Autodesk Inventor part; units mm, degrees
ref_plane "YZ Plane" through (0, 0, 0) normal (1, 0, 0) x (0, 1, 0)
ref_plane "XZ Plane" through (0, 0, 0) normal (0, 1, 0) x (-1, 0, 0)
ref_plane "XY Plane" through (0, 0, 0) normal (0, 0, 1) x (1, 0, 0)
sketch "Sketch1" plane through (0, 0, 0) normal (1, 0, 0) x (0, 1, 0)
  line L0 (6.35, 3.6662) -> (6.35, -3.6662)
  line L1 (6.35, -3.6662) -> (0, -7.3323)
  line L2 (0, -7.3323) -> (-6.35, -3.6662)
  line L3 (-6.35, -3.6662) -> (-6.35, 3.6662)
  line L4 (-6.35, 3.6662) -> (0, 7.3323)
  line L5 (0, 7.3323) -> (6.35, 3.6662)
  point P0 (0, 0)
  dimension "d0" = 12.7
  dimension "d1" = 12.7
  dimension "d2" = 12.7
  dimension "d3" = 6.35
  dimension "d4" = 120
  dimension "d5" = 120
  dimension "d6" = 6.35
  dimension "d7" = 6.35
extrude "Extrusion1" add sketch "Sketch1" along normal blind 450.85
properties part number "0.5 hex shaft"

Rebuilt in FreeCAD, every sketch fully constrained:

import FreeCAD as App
import Part
import Sketcher
Q = App.Units.Quantity


def add_polygon(sketch, points):
    """Adds a closed chain of lines whose ends are joined by coincident constraints."""
    first, n = sketch.GeometryCount, len(points)
    for a, b in zip(points, points[1:] + points[:1]):
        sketch.addGeometry(Part.LineSegment(App.Vector(*a, 0), App.Vector(*b, 0)), False)
    for i in range(n):
        sketch.addConstraint(Sketcher.Constraint("Coincident", first + i, 2, first + (i + 1) % n, 1))

doc = App.newDocument("Part")
body = doc.addObject("PartDesign::Body", "Body")

# Sketch on YZ plane
sketch1 = body.newObject("Sketcher::SketchObject", "Sketch")
sketch1.AttachmentSupport = (doc.getObject("YZ_Plane"), [""])
sketch1.MapMode = "FlatFace"
add_polygon(sketch1, [(6.35, -3.6662), (6.35, 3.6662), (0, 7.3323), (-6.35, 3.6662), (-6.35, -3.6662), (0, -7.3323)])  # lines 0-5
sketch1.addConstraint(Sketcher.Constraint("Vertical", 0))
sketch1.addConstraint(Sketcher.Constraint("Vertical", 3))
sketch1.addConstraint(Sketcher.Constraint("Symmetric", 0, 2, 3, 2, -1, 1))
sketch1.addConstraint(Sketcher.Constraint("Symmetric", 1, 2, 4, 2, -1, 1))
sketch1.addConstraint(Sketcher.Constraint("PointOnObject", 1, 2, -2))
sketch1.addConstraint(Sketcher.Constraint("Parallel", 2, 5))
sketch1.addConstraint(Sketcher.Constraint("Horizontal", 0, 2, 2, 2))
sketch1.addConstraint(Sketcher.Constraint("DistanceX", 2, 2, 0, 2, Q("0.5 in")))
sketch1.addConstraint(Sketcher.Constraint("Angle", 1, Q("150.0005 deg")))
sketch1.addConstraint(Sketcher.Constraint("DistanceY", 3, 2, 1, 2, Q("0.433 in")))
pad1 = body.newObject("PartDesign::Pad", "Pad")
pad1.Profile = sketch1
pad1.Length = Q("17.75 in")

doc.recompute()
